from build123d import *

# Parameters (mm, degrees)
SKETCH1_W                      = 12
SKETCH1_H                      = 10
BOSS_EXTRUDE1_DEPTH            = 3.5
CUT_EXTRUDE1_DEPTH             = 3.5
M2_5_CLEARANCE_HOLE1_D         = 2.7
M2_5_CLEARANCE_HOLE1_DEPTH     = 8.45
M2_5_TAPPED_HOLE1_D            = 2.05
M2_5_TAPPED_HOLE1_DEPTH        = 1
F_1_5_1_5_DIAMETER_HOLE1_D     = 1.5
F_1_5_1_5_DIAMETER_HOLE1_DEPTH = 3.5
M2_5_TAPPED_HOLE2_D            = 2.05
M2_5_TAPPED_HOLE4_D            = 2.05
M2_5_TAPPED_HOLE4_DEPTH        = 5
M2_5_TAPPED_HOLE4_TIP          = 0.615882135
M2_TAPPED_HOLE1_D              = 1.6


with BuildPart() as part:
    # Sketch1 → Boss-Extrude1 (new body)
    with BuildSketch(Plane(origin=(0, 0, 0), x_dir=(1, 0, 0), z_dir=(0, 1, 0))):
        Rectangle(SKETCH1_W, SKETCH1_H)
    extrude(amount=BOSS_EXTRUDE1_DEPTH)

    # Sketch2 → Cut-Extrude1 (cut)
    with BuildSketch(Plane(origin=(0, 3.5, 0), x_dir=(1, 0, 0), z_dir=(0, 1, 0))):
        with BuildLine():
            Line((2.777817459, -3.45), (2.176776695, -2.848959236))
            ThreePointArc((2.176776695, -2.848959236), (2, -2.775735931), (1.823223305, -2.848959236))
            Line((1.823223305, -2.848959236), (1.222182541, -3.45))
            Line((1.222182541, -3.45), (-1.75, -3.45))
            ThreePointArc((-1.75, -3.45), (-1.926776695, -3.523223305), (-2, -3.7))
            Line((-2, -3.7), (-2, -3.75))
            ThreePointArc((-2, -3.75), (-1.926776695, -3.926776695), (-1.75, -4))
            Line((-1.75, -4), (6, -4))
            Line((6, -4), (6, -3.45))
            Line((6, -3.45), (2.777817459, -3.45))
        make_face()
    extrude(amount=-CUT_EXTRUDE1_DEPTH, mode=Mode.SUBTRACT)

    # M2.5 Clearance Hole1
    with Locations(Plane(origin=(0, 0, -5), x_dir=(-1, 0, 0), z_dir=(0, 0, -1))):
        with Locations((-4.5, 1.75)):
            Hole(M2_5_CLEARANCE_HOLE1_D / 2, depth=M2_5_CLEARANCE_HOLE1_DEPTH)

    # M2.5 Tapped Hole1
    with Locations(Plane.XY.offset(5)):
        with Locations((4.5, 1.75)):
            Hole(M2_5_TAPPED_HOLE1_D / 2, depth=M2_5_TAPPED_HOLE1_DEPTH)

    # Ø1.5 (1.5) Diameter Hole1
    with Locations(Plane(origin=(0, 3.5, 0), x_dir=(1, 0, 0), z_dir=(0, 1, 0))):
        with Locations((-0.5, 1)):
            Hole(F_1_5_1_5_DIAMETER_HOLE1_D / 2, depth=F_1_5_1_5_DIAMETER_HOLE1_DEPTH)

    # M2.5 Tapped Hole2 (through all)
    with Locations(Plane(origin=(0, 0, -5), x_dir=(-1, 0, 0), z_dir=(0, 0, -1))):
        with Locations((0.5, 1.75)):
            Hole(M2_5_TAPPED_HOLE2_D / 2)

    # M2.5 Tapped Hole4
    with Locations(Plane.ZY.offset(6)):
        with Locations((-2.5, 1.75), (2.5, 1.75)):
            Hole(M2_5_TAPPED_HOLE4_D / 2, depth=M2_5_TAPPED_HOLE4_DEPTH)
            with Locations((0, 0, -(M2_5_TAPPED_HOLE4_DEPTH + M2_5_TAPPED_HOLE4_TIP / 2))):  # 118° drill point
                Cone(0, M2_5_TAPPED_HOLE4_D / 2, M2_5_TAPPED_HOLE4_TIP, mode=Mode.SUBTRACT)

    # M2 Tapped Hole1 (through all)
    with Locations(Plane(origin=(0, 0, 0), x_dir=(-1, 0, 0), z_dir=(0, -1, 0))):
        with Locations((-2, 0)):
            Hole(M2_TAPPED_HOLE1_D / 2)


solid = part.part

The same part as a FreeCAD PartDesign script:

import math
import FreeCAD as App
import Part
import Sketcher


def add_polygon(sketch, points):
    """Adds a closed chain of lines whose ends are joined by coincident constraints."""
    first, n = sketch.GeometryCount, len(points)
    for a, b in zip(points, points[1:] + points[:1]):
        sketch.addGeometry(Part.LineSegment(App.Vector(*a, 0), App.Vector(*b, 0)), False)
    for i in range(n):
        sketch.addConstraint(Sketcher.Constraint("Coincident", first + i, 2, first + (i + 1) % n, 1))

doc = App.newDocument("Part")
body = doc.addObject("PartDesign::Body", "Body")

# Sketch on XZ plane
sketch1 = body.newObject("Sketcher::SketchObject", "Sketch")
sketch1.AttachmentSupport = (doc.getObject("XZ_Plane"), [""])
sketch1.MapMode = "FlatFace"
add_polygon(sketch1, [(-6, -5), (-6, 5), (6, 5), (6, -5)])  # lines 0-3
sketch1.addConstraint(Sketcher.Constraint("Vertical", 0))
sketch1.addConstraint(Sketcher.Constraint("Horizontal", 1))
sketch1.addConstraint(Sketcher.Constraint("Vertical", 2))
sketch1.addConstraint(Sketcher.Constraint("Horizontal", 3))
sketch1.addConstraint(Sketcher.Constraint("Symmetric", 0, 2, 2, 2, -1, 1))
sketch1.addConstraint(Sketcher.Constraint("DistanceX", 1, 1, 1, 2, 12.0))
sketch1.addConstraint(Sketcher.Constraint("DistanceY", 0, 1, 0, 2, 10.0))
pad1 = body.newObject("PartDesign::Pad", "Pad")
pad1.Profile = sketch1
pad1.Length = 3.5
pad1.Reversed = True

# Sketch on XZ plane
sketch2 = body.newObject("Sketcher::SketchObject", "Sketch001")
sketch2.AttachmentSupport = (doc.getObject("XZ_Plane"), [""])
sketch2.MapMode = "FlatFace"
sketch2.AttachmentOffset = App.Placement(App.Vector(0, 0, -3.5), App.Rotation())
sketch2.addGeometry(Part.LineSegment(App.Vector(2.778, 3.45, 0), App.Vector(2.177, 2.849, 0)), False)
sketch2.addGeometry(Part.ArcOfCircle(Part.Circle(App.Vector(2, 3.026, 0), App.Vector(0, 0, 1), 0.25), math.radians(-135), math.radians(-45)), False)
sketch2.addGeometry(Part.LineSegment(App.Vector(1.823, 2.849, 0), App.Vector(1.222, 3.45, 0)), False)
sketch2.addGeometry(Part.LineSegment(App.Vector(1.222, 3.45, 0), App.Vector(-1.75, 3.45, 0)), False)
sketch2.addGeometry(Part.ArcOfCircle(Part.Circle(App.Vector(-1.75, 3.7, 0), App.Vector(0, 0, 1), 0.25), math.radians(-180), math.radians(-90)), False)
sketch2.addGeometry(Part.LineSegment(App.Vector(-2, 3.7, 0), App.Vector(-2, 3.75, 0)), False)
sketch2.addGeometry(Part.ArcOfCircle(Part.Circle(App.Vector(-1.75, 3.75, 0), App.Vector(0, 0, 1), 0.25), math.radians(90), math.radians(180)), False)
sketch2.addGeometry(Part.LineSegment(App.Vector(-1.75, 4, 0), App.Vector(6, 4, 0)), False)
sketch2.addGeometry(Part.LineSegment(App.Vector(6, 4, 0), App.Vector(6, 3.45, 0)), False)
sketch2.addGeometry(Part.LineSegment(App.Vector(6, 3.45, 0), App.Vector(2.778, 3.45, 0)), False)
sketch2.addConstraint(Sketcher.Constraint("Tangent", 0, 2, 1, 2))
sketch2.addConstraint(Sketcher.Constraint("Tangent", 1, 1, 2, 1))
sketch2.addConstraint(Sketcher.Constraint("Coincident", 2, 2, 3, 1))
sketch2.addConstraint(Sketcher.Constraint("Tangent", 3, 2, 4, 2))
sketch2.addConstraint(Sketcher.Constraint("Tangent", 4, 1, 5, 1))
sketch2.addConstraint(Sketcher.Constraint("Tangent", 5, 2, 6, 2))
sketch2.addConstraint(Sketcher.Constraint("Tangent", 6, 1, 7, 1))
sketch2.addConstraint(Sketcher.Constraint("Coincident", 7, 2, 8, 1))
sketch2.addConstraint(Sketcher.Constraint("Coincident", 8, 2, 9, 1))
sketch2.addConstraint(Sketcher.Constraint("Coincident", 9, 2, 0, 1))
sketch2.addConstraint(Sketcher.Constraint("Horizontal", 3))
sketch2.addConstraint(Sketcher.Constraint("Vertical", 5))
sketch2.addConstraint(Sketcher.Constraint("Horizontal", 7))
sketch2.addConstraint(Sketcher.Constraint("Vertical", 8))
sketch2.addConstraint(Sketcher.Constraint("Horizontal", 9))
sketch2.addConstraint(Sketcher.Constraint("Equal", 1, 4))
sketch2.addConstraint(Sketcher.Constraint("Equal", 4, 6))
sketch2.addConstraint(Sketcher.Constraint("Perpendicular", 0, 2))
sketch2.addConstraint(Sketcher.Constraint("Horizontal", 0, 2, 1, 1))
sketch2.addConstraint(Sketcher.Constraint("Horizontal", 3, 2, 8, 2))
sketch2.addConstraint(Sketcher.Constraint("Radius", 1, 0.25))
sketch2.addConstraint(Sketcher.Constraint("DistanceX", -1, 1, 1, 3, 2.0))
sketch2.addConstraint(Sketcher.Constraint("DistanceX", 4, 1, -1, 1, 2.0))
sketch2.addConstraint(Sketcher.Constraint("DistanceY", -1, 1, 6, 1, 4.0))
sketch2.addConstraint(Sketcher.Constraint("DistanceX", -1, 1, 7, 2, 6.0))
sketch2.addConstraint(Sketcher.Constraint("DistanceY", 5, 1, 5, 2, 0.05))
sketch2.addConstraint(Sketcher.Constraint("Distance", 0, 0.85))
pocket1 = body.newObject("PartDesign::Pocket", "Pocket")
pocket1.Profile = sketch2
pocket1.Length = 3.5
pocket1.Reversed = True

# Sketch on XY plane
sketch3 = body.newObject("Sketcher::SketchObject", "Sketch002")
sketch3.AttachmentSupport = (doc.getObject("XY_Plane"), [""])
sketch3.MapMode = "FlatFace"
sketch3.AttachmentOffset = App.Placement(App.Vector(0, 0, -5), App.Rotation())
sketch3.addGeometry(Part.Circle(App.Vector(4.5, 1.8, 0), App.Vector(0, 0, 1), 1.4), False)
sketch3.addConstraint(Sketcher.Constraint("Diameter", 0, 2.7))
sketch3.addConstraint(Sketcher.Constraint("DistanceX", -1, 1, 0, 3, 4.5))
sketch3.addConstraint(Sketcher.Constraint("DistanceY", -1, 1, 0, 3, 1.75))
doc.recompute()
hole = body.newObject("PartDesign::Hole", "Hole")
hole.Profile = sketch3
hole.ThreadType = "None"
hole.Diameter = 2.7
hole.DepthType = "Dimension"
hole.Depth = 8.45
hole.DrillPoint = "Flat"
hole.Reversed = True

# Sketch on XY plane
sketch4 = body.newObject("Sketcher::SketchObject", "Sketch003")
sketch4.AttachmentSupport = (doc.getObject("XY_Plane"), [""])
sketch4.MapMode = "FlatFace"
sketch4.AttachmentOffset = App.Placement(App.Vector(0, 0, 5), App.Rotation())
sketch4.addGeometry(Part.Circle(App.Vector(4.5, 1.8, 0), App.Vector(0, 0, 1), 1), False)
sketch4.addConstraint(Sketcher.Constraint("Diameter", 0, 2.05))
sketch4.addConstraint(Sketcher.Constraint("DistanceX", -1, 1, 0, 3, 4.5))
sketch4.addConstraint(Sketcher.Constraint("DistanceY", -1, 1, 0, 3, 1.75))
doc.recompute()
hole2 = body.newObject("PartDesign::Hole", "Hole001")
hole2.Profile = sketch4
hole2.ThreadType = "None"
hole2.Diameter = 2.05
hole2.DepthType = "Dimension"
hole2.Depth = 1
hole2.DrillPoint = "Flat"

# Sketch on XZ plane
sketch5 = body.newObject("Sketcher::SketchObject", "Sketch004")
sketch5.AttachmentSupport = (doc.getObject("XZ_Plane"), [""])
sketch5.MapMode = "FlatFace"
sketch5.AttachmentOffset = App.Placement(App.Vector(0, 0, -3.5), App.Rotation())
sketch5.addGeometry(Part.Circle(App.Vector(-0.5, -1, 0), App.Vector(0, 0, 1), 0.8), False)
sketch5.addConstraint(Sketcher.Constraint("Diameter", 0, 1.5))
sketch5.addConstraint(Sketcher.Constraint("DistanceY", 0, 3, -1, 1, 1.0))
sketch5.addConstraint(Sketcher.Constraint("DistanceX", 0, 3, -1, 1, 0.5))
doc.recompute()
hole3 = body.newObject("PartDesign::Hole", "Hole002")
hole3.Profile = sketch5
hole3.ThreadType = "None"
hole3.Diameter = 1.5
hole3.DepthType = "Dimension"
hole3.Depth = 3.5
hole3.DrillPoint = "Flat"
hole3.Reversed = True

# Sketch on XY plane
sketch6 = body.newObject("Sketcher::SketchObject", "Sketch005")
sketch6.AttachmentSupport = (doc.getObject("XY_Plane"), [""])
sketch6.MapMode = "FlatFace"
sketch6.AttachmentOffset = App.Placement(App.Vector(0, 0, -5), App.Rotation())
sketch6.addGeometry(Part.Circle(App.Vector(-0.5, 1.8, 0), App.Vector(0, 0, 1), 1), False)
sketch6.addConstraint(Sketcher.Constraint("Diameter", 0, 2.05))
sketch6.addConstraint(Sketcher.Constraint("DistanceX", 0, 3, -1, 1, 0.5))
sketch6.addConstraint(Sketcher.Constraint("DistanceY", -1, 1, 0, 3, 1.75))
doc.recompute()
hole4 = body.newObject("PartDesign::Hole", "Hole003")
hole4.Profile = sketch6
hole4.ThreadType = "None"
hole4.Diameter = 2.05
hole4.DepthType = "ThroughAll"
hole4.Reversed = True

# Sketch on YZ plane
sketch7 = body.newObject("Sketcher::SketchObject", "Sketch006")
sketch7.AttachmentSupport = (doc.getObject("YZ_Plane"), [""])
sketch7.MapMode = "FlatFace"
sketch7.AttachmentOffset = App.Placement(App.Vector(0, 0, -6), App.Rotation())
sketch7.addGeometry(Part.Circle(App.Vector(1.8, -2.5, 0), App.Vector(0, 0, 1), 1), False)
sketch7.addGeometry(Part.Circle(App.Vector(1.8, 2.5, 0), App.Vector(0, 0, 1), 1), False)
sketch7.addConstraint(Sketcher.Constraint("Equal", 0, 1))
sketch7.addConstraint(Sketcher.Constraint("Symmetric", 0, 3, 1, 3, -1))
sketch7.addConstraint(Sketcher.Constraint("Diameter", 0, 2.05))
sketch7.addConstraint(Sketcher.Constraint("DistanceY", 0, 3, 1, 3, 5.0))
sketch7.addConstraint(Sketcher.Constraint("DistanceX", -1, 1, 0, 3, 1.75))
doc.recompute()
hole5 = body.newObject("PartDesign::Hole", "Hole004")
hole5.Profile = sketch7
hole5.ThreadType = "None"
hole5.Diameter = 2.05
hole5.DepthType = "Dimension"
hole5.Depth = 5
hole5.DrillPoint = "Angled"
hole5.DrillPointAngle = 118
hole5.Reversed = True

# Sketch on XZ plane
sketch8 = body.newObject("Sketcher::SketchObject", "Sketch007")
sketch8.AttachmentSupport = (doc.getObject("XZ_Plane"), [""])
sketch8.MapMode = "FlatFace"
sketch8.addGeometry(Part.Circle(App.Vector(2, 0, 0), App.Vector(0, 0, 1), 0.8), False)
sketch8.addConstraint(Sketcher.Constraint("PointOnObject", 0, 3, -1))
sketch8.addConstraint(Sketcher.Constraint("Diameter", 0, 1.6))
sketch8.addConstraint(Sketcher.Constraint("DistanceX", -1, 1, 0, 3, 2.0))
doc.recompute()
hole6 = body.newObject("PartDesign::Hole", "Hole005")
hole6.Profile = sketch8
hole6.ThreadType = "None"
hole6.Diameter = 1.6
hole6.DepthType = "ThroughAll"

doc.recompute()
